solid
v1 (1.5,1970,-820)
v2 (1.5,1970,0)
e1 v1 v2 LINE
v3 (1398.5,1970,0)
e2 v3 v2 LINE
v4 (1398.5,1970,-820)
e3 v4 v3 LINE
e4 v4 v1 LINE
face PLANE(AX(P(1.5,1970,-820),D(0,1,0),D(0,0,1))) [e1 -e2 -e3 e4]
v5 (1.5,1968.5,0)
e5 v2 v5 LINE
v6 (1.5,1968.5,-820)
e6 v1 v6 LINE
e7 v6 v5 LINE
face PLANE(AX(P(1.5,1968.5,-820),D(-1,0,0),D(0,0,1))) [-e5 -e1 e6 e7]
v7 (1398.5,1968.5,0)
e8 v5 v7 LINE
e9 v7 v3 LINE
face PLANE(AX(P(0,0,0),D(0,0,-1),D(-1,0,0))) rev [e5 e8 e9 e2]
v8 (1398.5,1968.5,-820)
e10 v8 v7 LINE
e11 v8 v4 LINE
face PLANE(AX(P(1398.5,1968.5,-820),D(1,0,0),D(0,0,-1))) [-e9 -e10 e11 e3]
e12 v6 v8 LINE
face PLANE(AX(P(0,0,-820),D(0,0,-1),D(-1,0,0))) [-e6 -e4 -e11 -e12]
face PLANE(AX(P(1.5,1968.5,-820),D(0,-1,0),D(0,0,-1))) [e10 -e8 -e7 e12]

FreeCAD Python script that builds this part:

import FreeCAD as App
import Part
import Sketcher
Q = App.Units.Quantity

doc = App.newDocument("Part")
body = doc.addObject("PartDesign::Body", "Body")

sketch1 = body.newObject("Sketcher::SketchObject", "Sketch")
sketch1.AttachmentSupport = (doc.getObject("XY_Plane"), [""])
sketch1.MapMode = "FlatFace"
sketch1.addGeometry(Part.LineSegment(App.Vector(1.5, 1970, 0), App.Vector(1.5, 1968.5, 0)), False)
sketch1.addGeometry(Part.LineSegment(App.Vector(1.5, 1968.5, 0), App.Vector(1398.5, 1968.5, 0)), False)
sketch1.addGeometry(Part.LineSegment(App.Vector(1398.5, 1968.5, 0), App.Vector(1398.5, 1970, 0)), False)
sketch1.addGeometry(Part.LineSegment(App.Vector(1398.5, 1970, 0), App.Vector(1.5, 1970, 0)), False)
sketch1.addConstraint(Sketcher.Constraint("Coincident", 0, 2, 1, 1))
sketch1.addConstraint(Sketcher.Constraint("Coincident", 1, 2, 2, 1))
sketch1.addConstraint(Sketcher.Constraint("Coincident", 2, 2, 3, 1))
sketch1.addConstraint(Sketcher.Constraint("Coincident", 3, 2, 0, 1))
sketch1.addConstraint(Sketcher.Constraint("Vertical", 0))
sketch1.addConstraint(Sketcher.Constraint("Horizontal", 1))
sketch1.addConstraint(Sketcher.Constraint("Vertical", 2))
sketch1.addConstraint(Sketcher.Constraint("Horizontal", 3))
sketch1.addConstraint(Sketcher.Constraint("DistanceX", 1, 1, 1, 2, Q("1397 mm")))
sketch1.addConstraint(Sketcher.Constraint("DistanceY", 0, 2, 0, 1, Q("1.5 mm")))
sketch1.addConstraint(Sketcher.Constraint("DistanceY", -1, 1, 2, 2, Q("1970 mm")))
sketch1.addConstraint(Sketcher.Constraint("DistanceX", -1, 1, 0, 2, Q("1.5 mm")))
pad1 = body.newObject("PartDesign::Pad", "Pad")
pad1.Profile = sketch1
pad1.Length = 820
pad1.Reversed = True

doc.recompute()
